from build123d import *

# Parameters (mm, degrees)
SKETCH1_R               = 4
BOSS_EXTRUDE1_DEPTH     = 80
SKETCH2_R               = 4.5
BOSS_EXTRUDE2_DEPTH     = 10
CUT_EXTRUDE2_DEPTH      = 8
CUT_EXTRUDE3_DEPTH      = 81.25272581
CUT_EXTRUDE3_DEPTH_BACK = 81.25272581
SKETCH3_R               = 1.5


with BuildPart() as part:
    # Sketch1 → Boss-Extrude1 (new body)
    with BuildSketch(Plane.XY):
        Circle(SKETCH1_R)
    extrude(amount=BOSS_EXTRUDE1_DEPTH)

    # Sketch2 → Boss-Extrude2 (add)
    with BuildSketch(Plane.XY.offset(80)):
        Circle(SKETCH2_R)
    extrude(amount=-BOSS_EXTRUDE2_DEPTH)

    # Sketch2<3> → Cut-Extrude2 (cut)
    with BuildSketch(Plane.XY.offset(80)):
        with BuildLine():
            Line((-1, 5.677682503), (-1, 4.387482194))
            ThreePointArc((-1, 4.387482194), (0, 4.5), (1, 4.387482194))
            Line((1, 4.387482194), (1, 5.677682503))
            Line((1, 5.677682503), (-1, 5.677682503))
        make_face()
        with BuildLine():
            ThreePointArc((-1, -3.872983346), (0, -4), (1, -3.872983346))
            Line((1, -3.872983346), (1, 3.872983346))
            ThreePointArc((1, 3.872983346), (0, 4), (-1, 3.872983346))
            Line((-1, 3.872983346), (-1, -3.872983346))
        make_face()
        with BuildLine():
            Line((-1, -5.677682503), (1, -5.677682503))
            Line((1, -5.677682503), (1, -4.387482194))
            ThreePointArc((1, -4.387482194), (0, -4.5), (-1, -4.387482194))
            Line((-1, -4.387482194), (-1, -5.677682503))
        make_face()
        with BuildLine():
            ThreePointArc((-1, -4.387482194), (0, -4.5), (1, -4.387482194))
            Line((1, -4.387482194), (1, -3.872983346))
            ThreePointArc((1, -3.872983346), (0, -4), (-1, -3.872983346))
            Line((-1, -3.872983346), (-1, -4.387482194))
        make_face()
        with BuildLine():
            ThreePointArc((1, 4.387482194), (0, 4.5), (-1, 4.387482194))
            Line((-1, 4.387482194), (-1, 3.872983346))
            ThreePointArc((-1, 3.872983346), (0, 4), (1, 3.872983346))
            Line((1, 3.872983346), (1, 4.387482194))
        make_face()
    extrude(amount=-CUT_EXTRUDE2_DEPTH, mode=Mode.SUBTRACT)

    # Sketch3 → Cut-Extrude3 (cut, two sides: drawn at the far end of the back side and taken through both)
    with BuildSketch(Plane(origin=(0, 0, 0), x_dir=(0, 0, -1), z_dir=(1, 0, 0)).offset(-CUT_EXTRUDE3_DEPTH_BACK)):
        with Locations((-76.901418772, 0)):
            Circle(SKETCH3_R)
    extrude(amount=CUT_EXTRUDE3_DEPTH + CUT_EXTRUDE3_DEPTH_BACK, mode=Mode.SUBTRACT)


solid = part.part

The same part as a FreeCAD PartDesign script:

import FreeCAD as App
import Part
import Sketcher
from FreeCAD import Vector
Q = App.Units.Quantity


def add_polygon(sketch, points):
    """Adds a closed chain of lines whose ends are joined by coincident constraints."""
    first, n = sketch.GeometryCount, len(points)
    for a, b in zip(points, points[1:] + points[:1]):
        sketch.addGeometry(Part.LineSegment(App.Vector(*a, 0), App.Vector(*b, 0)), False)
    for i in range(n):
        sketch.addConstraint(Sketcher.Constraint("Coincident", first + i, 2, first + (i + 1) % n, 1))

doc = App.newDocument("Part")
body = doc.addObject("PartDesign::Body", "Body")

# Sketch on XY plane
sketch1 = doc.addObject("Sketcher::SketchObject", "Sketch")
body.addObject(sketch1)
sketch1.AttachmentSupport = (doc.XY_Plane, [""])
sketch1.MapMode = "FlatFace"
sketch1.addGeometry(Part.Circle(Vector(0, 0, 0), Vector(0, 0, 1), 4), False)
sketch1.addConstraint([
    Sketcher.Constraint("Coincident", 0, 3, -1, 1),
    Sketcher.Constraint("Diameter", 0, Q("8 mm")),
])
pad1 = doc.addObject("PartDesign::Pad", "Pad")
body.addObject(pad1)
pad1.Profile = sketch1
pad1.Length = 80

# Sketch on XY plane
sketch2 = doc.addObject("Sketcher::SketchObject", "Sketch001")
body.addObject(sketch2)
sketch2.AttachmentSupport = (doc.XY_Plane, [""])
sketch2.MapMode = "FlatFace"
sketch2.AttachmentOffset = App.Placement(Vector(0, 0, 80), App.Rotation())
sketch2.addGeometry(Part.Circle(Vector(0, 0, 0), Vector(0, 0, 1), 4.5), False)
sketch2.addConstraint([
    Sketcher.Constraint("Coincident", 0, 3, -1, 1),
    Sketcher.Constraint("Diameter", 0, Q("9 mm")),
])
pad2 = doc.addObject("PartDesign::Pad", "Pad001")
body.addObject(pad2)
pad2.Profile = sketch2
pad2.Length = 10
pad2.Reversed = True

# Sketch on XY plane
sketch3 = doc.addObject("Sketcher::SketchObject", "Sketch002")
body.addObject(sketch3)
sketch3.AttachmentSupport = (doc.XY_Plane, [""])
sketch3.MapMode = "FlatFace"
sketch3.AttachmentOffset = App.Placement(Vector(0, 0, 80), App.Rotation())
add_polygon(sketch3, [(1, 5.7), (-1, 5.7), (-1, -5.7), (1, -5.7)])  # lines 0-3
sketch3.addConstraint([
    Sketcher.Constraint("Horizontal", 0),
    Sketcher.Constraint("Vertical", 1),
    Sketcher.Constraint("Horizontal", 2),
    Sketcher.Constraint("Vertical", 3),
    Sketcher.Constraint("Symmetric", 0, 2, 2, 2, -1, 1),
    Sketcher.Constraint("DistanceX", 0, 2, 0, 1, Q("2 mm")),
    Sketcher.Constraint("DistanceY", 1, 2, 1, 1, Q("11.355365 mm")),
])
pocket1 = doc.addObject("PartDesign::Pocket", "Pocket")
body.addObject(pocket1)
pocket1.Profile = sketch3
pocket1.Length = 8

# Sketch on YZ plane
sketch4 = doc.addObject("Sketcher::SketchObject", "Sketch003")
body.addObject(sketch4)
sketch4.AttachmentSupport = (doc.YZ_Plane, [""])
sketch4.MapMode = "FlatFace"
sketch4.addGeometry(Part.Circle(Vector(0, 76.9, 0), Vector(0, 0, 1), 1.5), False)
sketch4.addConstraint([
    Sketcher.Constraint("PointOnObject", 0, 3, -2),
    Sketcher.Constraint("Diameter", 0, Q("3 mm")),
    Sketcher.Constraint("DistanceY", -1, 1, 0, 3, Q("76.901419 mm")),
])
pocket2 = doc.addObject("PartDesign::Pocket", "Pocket001")
body.addObject(pocket2)
pocket2.Profile = sketch4
pocket2.Type = "ThroughAll"
pocket2.Midplane = True

doc.recompute()
